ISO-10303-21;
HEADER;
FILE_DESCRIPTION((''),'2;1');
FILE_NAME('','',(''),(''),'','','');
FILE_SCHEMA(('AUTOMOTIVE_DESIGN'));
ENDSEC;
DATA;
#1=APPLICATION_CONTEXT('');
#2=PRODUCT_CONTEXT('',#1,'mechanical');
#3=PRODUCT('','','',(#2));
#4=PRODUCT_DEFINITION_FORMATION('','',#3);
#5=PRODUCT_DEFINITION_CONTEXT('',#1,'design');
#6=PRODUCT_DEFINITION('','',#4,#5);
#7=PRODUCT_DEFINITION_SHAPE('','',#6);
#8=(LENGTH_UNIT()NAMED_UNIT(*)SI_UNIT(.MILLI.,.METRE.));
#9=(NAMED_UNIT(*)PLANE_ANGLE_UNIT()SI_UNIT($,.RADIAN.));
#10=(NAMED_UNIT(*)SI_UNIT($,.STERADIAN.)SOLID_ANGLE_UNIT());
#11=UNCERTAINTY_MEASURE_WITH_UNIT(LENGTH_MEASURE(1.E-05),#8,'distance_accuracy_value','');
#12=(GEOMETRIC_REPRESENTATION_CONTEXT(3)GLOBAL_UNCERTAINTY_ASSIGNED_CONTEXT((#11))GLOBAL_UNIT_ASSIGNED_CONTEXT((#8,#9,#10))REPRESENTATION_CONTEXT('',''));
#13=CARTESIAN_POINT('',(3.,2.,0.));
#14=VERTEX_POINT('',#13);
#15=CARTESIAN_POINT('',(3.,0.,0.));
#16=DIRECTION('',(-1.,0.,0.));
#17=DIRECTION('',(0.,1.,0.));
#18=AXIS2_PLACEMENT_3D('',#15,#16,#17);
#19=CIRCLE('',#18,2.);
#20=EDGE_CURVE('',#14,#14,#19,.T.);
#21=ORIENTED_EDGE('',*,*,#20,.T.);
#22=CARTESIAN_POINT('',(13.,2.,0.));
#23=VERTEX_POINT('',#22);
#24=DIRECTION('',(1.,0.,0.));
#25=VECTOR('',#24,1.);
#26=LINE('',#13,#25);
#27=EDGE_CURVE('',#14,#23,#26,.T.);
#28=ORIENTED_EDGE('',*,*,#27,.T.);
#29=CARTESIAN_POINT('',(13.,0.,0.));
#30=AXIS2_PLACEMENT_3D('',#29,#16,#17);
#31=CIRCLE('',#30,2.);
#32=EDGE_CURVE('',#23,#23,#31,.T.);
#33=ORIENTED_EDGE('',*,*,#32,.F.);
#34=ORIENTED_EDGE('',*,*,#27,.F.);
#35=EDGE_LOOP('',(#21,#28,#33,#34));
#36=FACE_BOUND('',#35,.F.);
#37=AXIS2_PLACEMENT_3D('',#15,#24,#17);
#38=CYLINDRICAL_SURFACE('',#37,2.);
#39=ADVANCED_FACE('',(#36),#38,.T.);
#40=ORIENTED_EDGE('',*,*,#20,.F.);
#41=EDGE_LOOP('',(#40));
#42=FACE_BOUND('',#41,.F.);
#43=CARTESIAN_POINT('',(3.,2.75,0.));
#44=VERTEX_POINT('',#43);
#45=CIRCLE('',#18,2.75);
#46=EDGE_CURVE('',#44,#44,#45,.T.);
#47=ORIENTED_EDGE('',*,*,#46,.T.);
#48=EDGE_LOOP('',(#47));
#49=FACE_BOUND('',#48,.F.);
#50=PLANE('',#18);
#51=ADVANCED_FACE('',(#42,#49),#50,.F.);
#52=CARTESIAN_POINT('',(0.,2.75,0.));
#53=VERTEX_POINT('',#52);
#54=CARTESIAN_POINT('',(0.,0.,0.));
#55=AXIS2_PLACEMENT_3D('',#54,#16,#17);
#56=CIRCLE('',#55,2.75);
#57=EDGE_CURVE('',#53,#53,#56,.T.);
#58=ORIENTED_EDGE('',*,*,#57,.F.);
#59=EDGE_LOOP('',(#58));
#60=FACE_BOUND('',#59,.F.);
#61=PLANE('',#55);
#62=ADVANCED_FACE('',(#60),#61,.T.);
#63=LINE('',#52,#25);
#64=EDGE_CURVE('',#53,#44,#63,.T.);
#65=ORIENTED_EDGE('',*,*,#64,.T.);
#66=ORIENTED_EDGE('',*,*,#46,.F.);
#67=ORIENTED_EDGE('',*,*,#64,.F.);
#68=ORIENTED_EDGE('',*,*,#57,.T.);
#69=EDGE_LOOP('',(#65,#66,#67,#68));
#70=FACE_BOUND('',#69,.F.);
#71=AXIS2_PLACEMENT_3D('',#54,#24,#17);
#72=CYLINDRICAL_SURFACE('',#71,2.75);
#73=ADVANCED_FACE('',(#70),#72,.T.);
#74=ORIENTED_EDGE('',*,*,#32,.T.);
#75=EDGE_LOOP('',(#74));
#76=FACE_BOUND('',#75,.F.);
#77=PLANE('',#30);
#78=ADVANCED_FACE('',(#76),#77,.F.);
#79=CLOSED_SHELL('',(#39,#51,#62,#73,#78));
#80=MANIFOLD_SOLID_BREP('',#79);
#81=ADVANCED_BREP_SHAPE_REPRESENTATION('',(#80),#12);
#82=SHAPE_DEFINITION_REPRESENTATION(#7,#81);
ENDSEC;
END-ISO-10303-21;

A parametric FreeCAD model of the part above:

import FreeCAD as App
import Part
import Sketcher


def add_polygon(sketch, points):
    """Adds a closed chain of lines whose ends are joined by coincident constraints."""
    first, n = sketch.GeometryCount, len(points)
    for a, b in zip(points, points[1:] + points[:1]):
        sketch.addGeometry(Part.LineSegment(App.Vector(*a, 0), App.Vector(*b, 0)), False)
    for i in range(n):
        sketch.addConstraint(Sketcher.Constraint("Coincident", first + i, 2, first + (i + 1) % n, 1))

doc = App.newDocument("Part")
body = doc.addObject("PartDesign::Body", "Body")

# Sketch on XY plane
sketch1 = body.newObject("Sketcher::SketchObject", "Sketch")
sketch1.AttachmentSupport = (doc.getObject("XY_Plane"), [""])
sketch1.MapMode = "FlatFace"
add_polygon(sketch1, [(0, 2.8), (0, 0), (13, 0), (13, 2), (3, 2), (3, 2.8)])  # lines 0-5
sketch1.addConstraint([
    Sketcher.Constraint("Vertical", 0),
    Sketcher.Constraint("Horizontal", 1),
    Sketcher.Constraint("Vertical", 2),
    Sketcher.Constraint("Horizontal", 3),
    Sketcher.Constraint("Vertical", 4),
    Sketcher.Constraint("Horizontal", 5),
    Sketcher.Constraint("Coincident", 0, 2, -1, 1),
    Sketcher.Constraint("DistanceX", 3, 2, 3, 1, 10.0),
    Sketcher.Constraint("DistanceX", 5, 2, 5, 1, 3.0),
    Sketcher.Constraint("DistanceY", 2, 1, 2, 2, 2.0),
    Sketcher.Constraint("DistanceY", 0, 2, 0, 1, 2.75),
])
revolution = body.newObject("PartDesign::Revolution", "Revolution")
revolution.Profile = sketch1
revolution.ReferenceAxis = (sketch1, ["H_Axis"])
revolution.Angle = 360

doc.recompute()
